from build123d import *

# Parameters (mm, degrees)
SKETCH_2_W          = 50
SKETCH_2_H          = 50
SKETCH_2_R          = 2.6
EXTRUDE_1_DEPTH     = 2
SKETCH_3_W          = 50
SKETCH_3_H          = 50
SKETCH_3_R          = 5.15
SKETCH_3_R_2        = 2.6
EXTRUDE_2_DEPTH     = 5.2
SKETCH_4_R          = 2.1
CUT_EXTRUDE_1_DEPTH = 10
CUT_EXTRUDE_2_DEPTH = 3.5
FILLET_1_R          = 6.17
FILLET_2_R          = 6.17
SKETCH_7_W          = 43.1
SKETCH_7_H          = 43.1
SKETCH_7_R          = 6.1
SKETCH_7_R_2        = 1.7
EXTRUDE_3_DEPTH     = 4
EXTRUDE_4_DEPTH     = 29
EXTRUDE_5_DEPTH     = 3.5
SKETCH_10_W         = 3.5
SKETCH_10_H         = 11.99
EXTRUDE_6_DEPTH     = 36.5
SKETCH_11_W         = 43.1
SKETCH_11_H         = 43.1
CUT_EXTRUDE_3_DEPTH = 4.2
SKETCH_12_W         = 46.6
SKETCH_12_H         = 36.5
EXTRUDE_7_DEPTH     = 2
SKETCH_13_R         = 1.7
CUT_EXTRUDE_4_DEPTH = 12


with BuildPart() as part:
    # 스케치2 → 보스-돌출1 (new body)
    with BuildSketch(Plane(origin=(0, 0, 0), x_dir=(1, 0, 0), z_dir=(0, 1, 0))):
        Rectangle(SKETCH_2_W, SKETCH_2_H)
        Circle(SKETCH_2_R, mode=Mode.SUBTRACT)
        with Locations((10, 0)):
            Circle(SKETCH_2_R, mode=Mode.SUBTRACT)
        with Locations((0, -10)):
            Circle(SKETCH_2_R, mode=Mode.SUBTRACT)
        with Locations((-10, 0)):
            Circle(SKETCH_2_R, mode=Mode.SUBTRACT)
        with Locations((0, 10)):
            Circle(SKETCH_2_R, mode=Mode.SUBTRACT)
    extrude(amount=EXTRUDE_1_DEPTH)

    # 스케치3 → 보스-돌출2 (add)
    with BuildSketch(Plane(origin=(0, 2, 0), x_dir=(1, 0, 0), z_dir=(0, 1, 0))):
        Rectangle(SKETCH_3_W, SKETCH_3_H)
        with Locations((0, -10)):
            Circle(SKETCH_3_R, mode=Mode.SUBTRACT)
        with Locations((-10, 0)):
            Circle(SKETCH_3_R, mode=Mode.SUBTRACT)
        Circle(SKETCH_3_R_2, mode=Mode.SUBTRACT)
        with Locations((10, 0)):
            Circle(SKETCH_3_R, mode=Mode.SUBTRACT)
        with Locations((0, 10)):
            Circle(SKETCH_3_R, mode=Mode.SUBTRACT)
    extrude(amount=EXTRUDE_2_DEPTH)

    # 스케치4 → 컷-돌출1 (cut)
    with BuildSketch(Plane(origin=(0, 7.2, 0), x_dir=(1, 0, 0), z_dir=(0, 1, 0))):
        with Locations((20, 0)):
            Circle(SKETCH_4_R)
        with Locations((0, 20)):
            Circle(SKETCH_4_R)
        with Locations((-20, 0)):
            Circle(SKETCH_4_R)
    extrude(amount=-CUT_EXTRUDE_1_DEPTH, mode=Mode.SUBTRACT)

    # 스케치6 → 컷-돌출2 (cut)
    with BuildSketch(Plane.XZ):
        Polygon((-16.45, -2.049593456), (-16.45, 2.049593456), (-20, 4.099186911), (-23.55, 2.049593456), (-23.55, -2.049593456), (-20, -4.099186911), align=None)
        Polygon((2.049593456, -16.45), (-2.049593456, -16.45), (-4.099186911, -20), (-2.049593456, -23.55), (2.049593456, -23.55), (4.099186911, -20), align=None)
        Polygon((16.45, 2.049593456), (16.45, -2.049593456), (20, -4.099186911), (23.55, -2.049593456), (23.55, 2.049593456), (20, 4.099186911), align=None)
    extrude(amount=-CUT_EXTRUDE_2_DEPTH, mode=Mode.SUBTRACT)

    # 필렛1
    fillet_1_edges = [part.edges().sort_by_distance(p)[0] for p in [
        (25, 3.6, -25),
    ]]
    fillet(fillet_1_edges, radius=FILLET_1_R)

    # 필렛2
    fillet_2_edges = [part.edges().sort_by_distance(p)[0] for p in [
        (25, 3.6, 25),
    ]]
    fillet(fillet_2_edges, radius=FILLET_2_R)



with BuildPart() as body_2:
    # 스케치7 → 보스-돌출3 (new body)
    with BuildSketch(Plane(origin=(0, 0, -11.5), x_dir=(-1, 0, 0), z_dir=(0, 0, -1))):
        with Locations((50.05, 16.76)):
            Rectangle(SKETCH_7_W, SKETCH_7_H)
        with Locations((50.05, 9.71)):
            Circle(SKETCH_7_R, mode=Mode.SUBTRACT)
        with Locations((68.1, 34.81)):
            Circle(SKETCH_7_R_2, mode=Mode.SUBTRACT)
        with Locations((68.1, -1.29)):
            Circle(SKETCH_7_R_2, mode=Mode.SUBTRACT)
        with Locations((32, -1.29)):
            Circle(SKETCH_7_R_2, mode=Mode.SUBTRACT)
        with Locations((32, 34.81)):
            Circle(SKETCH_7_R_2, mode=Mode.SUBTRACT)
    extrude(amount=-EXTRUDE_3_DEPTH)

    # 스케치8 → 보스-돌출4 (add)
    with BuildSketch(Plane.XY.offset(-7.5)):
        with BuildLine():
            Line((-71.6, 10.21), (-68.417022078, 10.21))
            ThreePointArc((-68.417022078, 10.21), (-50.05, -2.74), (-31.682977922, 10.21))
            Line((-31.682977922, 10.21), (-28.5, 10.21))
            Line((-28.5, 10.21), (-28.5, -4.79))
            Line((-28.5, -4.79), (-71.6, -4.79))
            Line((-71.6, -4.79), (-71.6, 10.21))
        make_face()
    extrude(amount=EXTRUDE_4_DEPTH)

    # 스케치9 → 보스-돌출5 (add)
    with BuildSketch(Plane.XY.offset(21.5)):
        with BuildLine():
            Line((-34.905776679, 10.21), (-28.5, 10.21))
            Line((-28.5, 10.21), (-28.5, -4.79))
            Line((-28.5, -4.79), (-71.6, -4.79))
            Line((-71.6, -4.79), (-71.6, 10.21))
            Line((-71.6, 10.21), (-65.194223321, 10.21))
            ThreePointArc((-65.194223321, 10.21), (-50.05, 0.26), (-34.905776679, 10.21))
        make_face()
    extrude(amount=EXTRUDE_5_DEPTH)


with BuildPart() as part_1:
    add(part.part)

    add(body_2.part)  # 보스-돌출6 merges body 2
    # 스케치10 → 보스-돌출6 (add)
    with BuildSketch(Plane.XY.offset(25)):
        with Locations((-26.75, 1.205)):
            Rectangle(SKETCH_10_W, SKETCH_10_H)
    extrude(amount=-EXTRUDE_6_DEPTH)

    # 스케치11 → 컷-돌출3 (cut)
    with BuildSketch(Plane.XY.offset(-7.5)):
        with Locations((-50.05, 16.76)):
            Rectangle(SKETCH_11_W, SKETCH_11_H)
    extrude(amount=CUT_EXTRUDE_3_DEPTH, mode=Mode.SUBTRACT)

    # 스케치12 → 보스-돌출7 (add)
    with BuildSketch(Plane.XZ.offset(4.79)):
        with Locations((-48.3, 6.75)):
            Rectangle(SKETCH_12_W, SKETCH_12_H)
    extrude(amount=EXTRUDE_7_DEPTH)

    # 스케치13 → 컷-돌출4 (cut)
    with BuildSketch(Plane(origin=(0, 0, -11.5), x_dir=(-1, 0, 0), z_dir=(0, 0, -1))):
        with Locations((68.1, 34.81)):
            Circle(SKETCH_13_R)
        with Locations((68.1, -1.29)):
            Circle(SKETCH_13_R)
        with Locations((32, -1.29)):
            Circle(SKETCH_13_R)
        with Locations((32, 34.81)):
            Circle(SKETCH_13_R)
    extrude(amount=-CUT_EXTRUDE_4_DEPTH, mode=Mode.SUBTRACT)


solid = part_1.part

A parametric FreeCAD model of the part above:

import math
import FreeCAD as App
import Part
import Sketcher
Q = App.Units.Quantity


def edges_at(feature, points):
    """Names of the edges that pass closest to the given points."""
    edges = feature.Shape.Edges
    near = lambda p: min(range(len(edges)), key=lambda i: edges[i].distToShape(Part.Vertex(*p))[0])
    return sorted({f"Edge{near(p) + 1}" for p in points})

doc = App.newDocument("Part")
params = doc.addObject("Spreadsheet::Sheet", "Params")
for row, (alias, value) in enumerate([
    ("sketch1_diameter", "5.2 mm"),
    ("sketch1_width", "50 mm"),
    ("pad1_length", "2 mm"),
    ("sketch2_diameter", "10.3 mm"),
    ("sketch2_diameter2", "5.2 mm"),
    ("sketch2_width", "50 mm"),
    ("pad2_length", "5.2 mm"),
    ("sketch3_diameter", "4.2 mm"),
    ("pocket1_length", "10 mm"),
    ("pocket2_length", "3.5 mm"),
    ("fillet_radius", "6.17 mm"),
    ("fillet2_radius", "6.17 mm"),
    ("sketch5_diameter", "3.4 mm"),
    ("sketch5_diameter2", "12.2 mm"),
    ("sketch5_width", "43.1 mm"),
    ("pad3_length", "4 mm"),
    ("sketch6_radius", "19.5 mm"),
    ("sketch6_height", "15 mm"),
    ("sketch6_width", "43.1 mm"),
    ("pad4_length", "29 mm"),
    ("sketch7_radius", "16.5 mm"),
    ("sketch7_height", "15 mm"),
    ("sketch7_width", "43.1 mm"),
    ("pad5_length", "3.5 mm"),
    ("sketch8_width", "3.5 mm"),
    ("sketch8_height", "11.99 mm"),
    ("pad6_length", "36.5 mm"),
    ("sketch9_width", "43.1 mm"),
    ("pocket3_length", "4.2 mm"),
    ("sketch10_width", "46.6 mm"),
    ("sketch10_height", "36.5 mm"),
    ("pad7_length", "2 mm"),
    ("sketch11_diameter", "3.4 mm"),
    ("pocket4_length", "12 mm"),
], start=1):
    params.set(f"A{row}", alias)
    params.set(f"B{row}", "=" + value)
    params.setAlias(f"B{row}", alias)

body = doc.addObject("PartDesign::Body", "Body")

# Sketch on XZ plane
sketch1 = body.newObject("Sketcher::SketchObject", "Sketch")
sketch1.AttachmentSupport = (doc.getObject("XZ_Plane"), [""])
sketch1.MapMode = "FlatFace"
sketch1.addGeometry([
    Part.LineSegment(App.Vector(-25, -25, 0), App.Vector(-25, 25, 0)),  # 0
    Part.LineSegment(App.Vector(-25, 25, 0), App.Vector(25, 25, 0)),  # 1
    Part.LineSegment(App.Vector(25, 25, 0), App.Vector(25, -25, 0)),  # 2
    Part.LineSegment(App.Vector(25, -25, 0), App.Vector(-25, -25, 0)),  # 3
    Part.Circle(App.Vector(0, 10, 0), App.Vector(0, 0, 1), 2.6),  # 4
    Part.Circle(App.Vector(-10, 0, 0), App.Vector(0, 0, 1), 2.6),  # 5
    Part.Circle(App.Vector(0, 0, 0), App.Vector(0, 0, 1), 2.6),  # 6
    Part.Circle(App.Vector(10, 0, 0), App.Vector(0, 0, 1), 2.6),  # 7
    Part.Circle(App.Vector(0, -10, 0), App.Vector(0, 0, 1), 2.6),  # 8
], False)
sketch1.addConstraint([
    Sketcher.Constraint("Coincident", 0, 2, 1, 1),
    Sketcher.Constraint("Coincident", 1, 2, 2, 1),
    Sketcher.Constraint("Coincident", 2, 2, 3, 1),
    Sketcher.Constraint("Coincident", 3, 2, 0, 1),
    Sketcher.Constraint("Vertical", 0),
    Sketcher.Constraint("Horizontal", 1),
    Sketcher.Constraint("Vertical", 2),
    Sketcher.Constraint("Horizontal", 3),
    Sketcher.Constraint("Coincident", 6, 3, -1, 1),
    Sketcher.Constraint("Equal", 4, 5),
    Sketcher.Constraint("Equal", 5, 6),
    Sketcher.Constraint("Equal", 6, 7),
    Sketcher.Constraint("Equal", 7, 8),
    Sketcher.Constraint("Symmetric", 5, 3, 7, 3, -1, 1),
    Sketcher.Constraint("Symmetric", 4, 3, 8, 3, -1, 1),
    Sketcher.Constraint("Symmetric", 0, 2, 2, 2, -1, 1),
    Sketcher.Constraint("PointOnObject", 4, 3, -2),
    Sketcher.Constraint("PointOnObject", 5, 3, -1),
    Sketcher.Constraint("Equal", 3, 0),
    Sketcher.Constraint("Diameter", 4, Q("5.2 mm")),
    Sketcher.Constraint("DistanceX", 1, 1, 1, 2, Q("50 mm")),
    Sketcher.Constraint("DistanceY", -1, 1, 4, 3, Q("10 mm")),
    Sketcher.Constraint("DistanceX", 5, 3, -1, 1, Q("10 mm")),
])
sketch1.setExpression("Constraints[19]", "Params.sketch1_diameter")
sketch1.setExpression("Constraints[20]", "Params.sketch1_width")
pad1 = body.newObject("PartDesign::Pad", "Pad")
pad1.Profile = sketch1
pad1.setExpression("Length", "Params.pad1_length")
pad1.Reversed = True

# Sketch on XZ plane
sketch2 = body.newObject("Sketcher::SketchObject", "Sketch001")
sketch2.AttachmentSupport = (doc.getObject("XZ_Plane"), [""])
sketch2.MapMode = "FlatFace"
sketch2.AttachmentOffset = App.Placement(App.Vector(0, 0, -2), App.Rotation())
sketch2.addGeometry([
    Part.LineSegment(App.Vector(-25, -25, 0), App.Vector(-25, 25, 0)),  # 0
    Part.LineSegment(App.Vector(-25, 25, 0), App.Vector(25, 25, 0)),  # 1
    Part.LineSegment(App.Vector(25, 25, 0), App.Vector(25, -25, 0)),  # 2
    Part.LineSegment(App.Vector(25, -25, 0), App.Vector(-25, -25, 0)),  # 3
    Part.Circle(App.Vector(0, 10, 0), App.Vector(0, 0, 1), 5.2),  # 4
    Part.Circle(App.Vector(-10, 0, 0), App.Vector(0, 0, 1), 5.2),  # 5
    Part.Circle(App.Vector(0, 0, 0), App.Vector(0, 0, 1), 2.6),  # 6
    Part.Circle(App.Vector(10, 0, 0), App.Vector(0, 0, 1), 5.2),  # 7
    Part.Circle(App.Vector(0, -10, 0), App.Vector(0, 0, 1), 5.2),  # 8
], False)
sketch2.addConstraint([
    Sketcher.Constraint("Coincident", 0, 2, 1, 1),
    Sketcher.Constraint("Coincident", 1, 2, 2, 1),
    Sketcher.Constraint("Coincident", 2, 2, 3, 1),
    Sketcher.Constraint("Coincident", 3, 2, 0, 1),
    Sketcher.Constraint("Vertical", 0),
    Sketcher.Constraint("Horizontal", 1),
    Sketcher.Constraint("Vertical", 2),
    Sketcher.Constraint("Horizontal", 3),
    Sketcher.Constraint("Coincident", 6, 3, -1, 1),
    Sketcher.Constraint("Equal", 4, 5),
    Sketcher.Constraint("Equal", 5, 7),
    Sketcher.Constraint("Equal", 7, 8),
    Sketcher.Constraint("Symmetric", 5, 3, 7, 3, -1, 1),
    Sketcher.Constraint("Symmetric", 4, 3, 8, 3, -1, 1),
    Sketcher.Constraint("Symmetric", 0, 2, 2, 2, -1, 1),
    Sketcher.Constraint("PointOnObject", 4, 3, -2),
    Sketcher.Constraint("PointOnObject", 5, 3, -1),
    Sketcher.Constraint("Equal", 3, 0),
    Sketcher.Constraint("Diameter", 4, Q("10.3 mm")),
    Sketcher.Constraint("Diameter", 6, Q("5.2 mm")),
    Sketcher.Constraint("DistanceX", 1, 1, 1, 2, Q("50 mm")),
    Sketcher.Constraint("DistanceY", -1, 1, 4, 3, Q("10 mm")),
    Sketcher.Constraint("DistanceX", 5, 3, -1, 1, Q("10 mm")),
])
sketch2.setExpression("Constraints[18]", "Params.sketch2_diameter")
sketch2.setExpression("Constraints[19]", "Params.sketch2_diameter2")
sketch2.setExpression("Constraints[20]", "Params.sketch2_width")
pad2 = body.newObject("PartDesign::Pad", "Pad001")
pad2.Profile = sketch2
pad2.setExpression("Length", "Params.pad2_length")
pad2.Reversed = True

# Sketch on XZ plane
sketch3 = body.newObject("Sketcher::SketchObject", "Sketch002")
sketch3.AttachmentSupport = (doc.getObject("XZ_Plane"), [""])
sketch3.MapMode = "FlatFace"
sketch3.AttachmentOffset = App.Placement(App.Vector(0, 0, -7.2), App.Rotation())
sketch3.addGeometry([
    Part.Circle(App.Vector(20, 0, 0), App.Vector(0, 0, 1), 2.1),
    Part.Circle(App.Vector(0, -20, 0), App.Vector(0, 0, 1), 2.1),
    Part.Circle(App.Vector(-20, 0, 0), App.Vector(0, 0, 1), 2.1),
], False)
sketch3.addConstraint([
    Sketcher.Constraint("Equal", 0, 1),
    Sketcher.Constraint("Equal", 1, 2),
    Sketcher.Constraint("Symmetric", 0, 3, 2, 3, -1, 1),
    Sketcher.Constraint("PointOnObject", 0, 3, -1),
    Sketcher.Constraint("PointOnObject", 1, 3, -2),
    Sketcher.Constraint("Diameter", 0, Q("4.2 mm")),
    Sketcher.Constraint("DistanceX", -1, 1, 0, 3, Q("20 mm")),
    Sketcher.Constraint("DistanceY", 1, 3, -1, 1, Q("20 mm")),
])
sketch3.setExpression("Constraints[5]", "Params.sketch3_diameter")
pocket1 = body.newObject("PartDesign::Pocket", "Pocket")
pocket1.Profile = sketch3
pocket1.setExpression("Length", "Params.pocket1_length")
pocket1.Reversed = True

# Sketch on XZ plane
sketch4 = body.newObject("Sketcher::SketchObject", "Sketch003")
sketch4.AttachmentSupport = (doc.getObject("XZ_Plane"), [""])
sketch4.MapMode = "FlatFace"
sketch4.addGeometry([
    Part.LineSegment(App.Vector(-16.4, -2, 0), App.Vector(-16.4, 2, 0)),  # 0
    Part.LineSegment(App.Vector(-16.4, 2, 0), App.Vector(-20, 4.1, 0)),  # 1
    Part.LineSegment(App.Vector(-20, 4.1, 0), App.Vector(-23.6, 2, 0)),  # 2
    Part.LineSegment(App.Vector(-23.6, 2, 0), App.Vector(-23.6, -2, 0)),  # 3
    Part.LineSegment(App.Vector(-23.6, -2, 0), App.Vector(-20, -4.1, 0)),  # 4
    Part.LineSegment(App.Vector(-20, -4.1, 0), App.Vector(-16.4, -2, 0)),  # 5
    Part.LineSegment(App.Vector(2, -16.4, 0), App.Vector(-2, -16.4, 0)),  # 6
    Part.LineSegment(App.Vector(-2, -16.4, 0), App.Vector(-4.1, -20, 0)),  # 7
    Part.LineSegment(App.Vector(-4.1, -20, 0), App.Vector(-2, -23.6, 0)),  # 8
    Part.LineSegment(App.Vector(-2, -23.6, 0), App.Vector(2, -23.6, 0)),  # 9
    Part.LineSegment(App.Vector(2, -23.6, 0), App.Vector(4.1, -20, 0)),  # 10
    Part.LineSegment(App.Vector(4.1, -20, 0), App.Vector(2, -16.4, 0)),  # 11
    Part.LineSegment(App.Vector(16.4, 2, 0), App.Vector(16.4, -2, 0)),  # 12
    Part.LineSegment(App.Vector(16.4, -2, 0), App.Vector(20, -4.1, 0)),  # 13
    Part.LineSegment(App.Vector(20, -4.1, 0), App.Vector(23.6, -2, 0)),  # 14
    Part.LineSegment(App.Vector(23.6, -2, 0), App.Vector(23.6, 2, 0)),  # 15
    Part.LineSegment(App.Vector(23.6, 2, 0), App.Vector(20, 4.1, 0)),  # 16
    Part.LineSegment(App.Vector(20, 4.1, 0), App.Vector(16.4, 2, 0)),  # 17
], False)
sketch4.addConstraint([
    Sketcher.Constraint("Coincident", 0, 2, 1, 1),
    Sketcher.Constraint("Coincident", 1, 2, 2, 1),
    Sketcher.Constraint("Coincident", 2, 2, 3, 1),
    Sketcher.Constraint("Coincident", 3, 2, 4, 1),
    Sketcher.Constraint("Coincident", 4, 2, 5, 1),
    Sketcher.Constraint("Coincident", 5, 2, 0, 1),
    Sketcher.Constraint("Coincident", 6, 2, 7, 1),
    Sketcher.Constraint("Coincident", 7, 2, 8, 1),
    Sketcher.Constraint("Coincident", 8, 2, 9, 1),
    Sketcher.Constraint("Coincident", 9, 2, 10, 1),
    Sketcher.Constraint("Coincident", 10, 2, 11, 1),
    Sketcher.Constraint("Coincident", 11, 2, 6, 1),
    Sketcher.Constraint("Coincident", 12, 2, 13, 1),
    Sketcher.Constraint("Coincident", 13, 2, 14, 1),
    Sketcher.Constraint("Coincident", 14, 2, 15, 1),
    Sketcher.Constraint("Coincident", 15, 2, 16, 1),
    Sketcher.Constraint("Coincident", 16, 2, 17, 1),
    Sketcher.Constraint("Coincident", 17, 2, 12, 1),
    Sketcher.Constraint("Vertical", 0),
    Sketcher.Constraint("Vertical", 3),
    Sketcher.Constraint("Horizontal", 6),
    Sketcher.Constraint("Horizontal", 9),
    Sketcher.Constraint("Vertical", 12),
    Sketcher.Constraint("Vertical", 15),
    Sketcher.Constraint("Symmetric", 0, 2, 12, 2, -1, 1),
    Sketcher.Constraint("Symmetric", 1, 2, 13, 2, -1, 1),
    Sketcher.Constraint("Symmetric", 2, 2, 14, 2, -1, 1),
    Sketcher.Constraint("Symmetric", 4, 2, 16, 2, -1, 1),
    Sketcher.Constraint("Symmetric", 7, 2, 10, 2, -2),
    Sketcher.Constraint("Symmetric", 4, 2, 13, 2, -2),
    Sketcher.Constraint("Parallel", 1, 4),
    Sketcher.Constraint("Parallel", 2, 5),
    Sketcher.Constraint("Perpendicular", 4, 7),
    Sketcher.Constraint("Perpendicular", 5, 8),
    Sketcher.Constraint("Parallel", 7, 10),
    Sketcher.Constraint("Parallel", 8, 11),
    Sketcher.Constraint("Parallel", 13, 16),
    Sketcher.Constraint("Parallel", 14, 17),
    Sketcher.Constraint("Horizontal", 0, 2, 2, 2),
    Sketcher.Constraint("Horizontal", 3, 2, 5, 2),
    Sketcher.Constraint("Vertical", 6, 2, 8, 2),
    Sketcher.Constraint("Equal", 9, 0),
    Sketcher.Constraint("Equal", 5, 7),
    Sketcher.Constraint("Angle", 1, Q("150 deg")),
    Sketcher.Constraint("DistanceX", 1, 2, -1, 1, Q("20 mm")),
    Sketcher.Constraint("DistanceY", 7, 2, -1, 1, Q("20 mm")),
    Sketcher.Constraint("DistanceX", 2, 2, 0, 2, Q("7.1 mm")),
    Sketcher.Constraint("DistanceX", 6, 2, 6, 1, Q("4.099187 mm")),
])
pocket2 = body.newObject("PartDesign::Pocket", "Pocket001")
pocket2.Profile = sketch4
pocket2.setExpression("Length", "Params.pocket2_length")
doc.recompute()

fillet = body.newObject("PartDesign::Fillet", "Fillet")
fillet.Base = (pocket2, edges_at(pocket2, [(25, 3.6, -25)]))
fillet.setExpression("Radius", "Params.fillet_radius")
doc.recompute()

fillet2 = body.newObject("PartDesign::Fillet", "Fillet001")
fillet2.Base = (fillet, edges_at(fillet, [(25, 3.6, 25)]))
fillet2.setExpression("Radius", "Params.fillet2_radius")
body2 = doc.addObject("PartDesign::Body", "Body001")

# Sketch on XY plane
sketch5 = body2.newObject("Sketcher::SketchObject", "Sketch004")
sketch5.AttachmentSupport = (doc.getObject("XY_Plane001"), [""])
sketch5.MapMode = "FlatFace"
sketch5.AttachmentOffset = App.Placement(App.Vector(0, 0, -11.5), App.Rotation())
sketch5.addGeometry([
    Part.LineSegment(App.Vector(-28.5, 38.3, 0), App.Vector(-28.5, -4.8, 0)),  # 0
    Part.LineSegment(App.Vector(-28.5, -4.8, 0), App.Vector(-71.6, -4.8, 0)),  # 1
    Part.LineSegment(App.Vector(-71.6, -4.8, 0), App.Vector(-71.6, 38.3, 0)),  # 2
    Part.LineSegment(App.Vector(-71.6, 38.3, 0), App.Vector(-28.5, 38.3, 0)),  # 3
    Part.Circle(App.Vector(-32, -1.3, 0), App.Vector(0, 0, 1), 1.7),  # 4
    Part.Circle(App.Vector(-50, 9.7, 0), App.Vector(0, 0, 1), 6.1),  # 5
    Part.Circle(App.Vector(-68.1, -1.3, 0), App.Vector(0, 0, 1), 1.7),  # 6
    Part.Circle(App.Vector(-32, 34.8, 0), App.Vector(0, 0, 1), 1.7),  # 7
    Part.Circle(App.Vector(-68.1, 34.8, 0), App.Vector(0, 0, 1), 1.7),  # 8
], False)
sketch5.addConstraint([
    Sketcher.Constraint("Coincident", 0, 2, 1, 1),
    Sketcher.Constraint("Coincident", 1, 2, 2, 1),
    Sketcher.Constraint("Coincident", 2, 2, 3, 1),
    Sketcher.Constraint("Coincident", 3, 2, 0, 1),
    Sketcher.Constraint("Vertical", 0),
    Sketcher.Constraint("Horizontal", 1),
    Sketcher.Constraint("Vertical", 2),
    Sketcher.Constraint("Horizontal", 3),
    Sketcher.Constraint("Equal", 4, 6),
    Sketcher.Constraint("Equal", 6, 7),
    Sketcher.Constraint("Equal", 7, 8),
    Sketcher.Constraint("Horizontal", 4, 3, 6, 3),
    Sketcher.Constraint("Horizontal", 7, 3, 8, 3),
    Sketcher.Constraint("Vertical", 4, 3, 7, 3),
    Sketcher.Constraint("Vertical", 6, 3, 8, 3),
    Sketcher.Constraint("Equal", 3, 0),
    Sketcher.Constraint("Diameter", 4, Q("3.4 mm")),
    Sketcher.Constraint("Diameter", 5, Q("12.2 mm")),
    Sketcher.Constraint("DistanceX", 1, 2, 1, 1, Q("43.1 mm")),
    Sketcher.Constraint("DistanceX", 4, 3, -1, 1, Q("32 mm")),
    Sketcher.Constraint("DistanceY", 4, 3, 5, 3, Q("11 mm")),
    Sketcher.Constraint("DistanceX", 6, 3, -1, 1, Q("68.1 mm")),
    Sketcher.Constraint("DistanceX", 0, 2, -1, 1, Q("28.5 mm")),
    Sketcher.Constraint("DistanceY", 5, 3, 7, 3, Q("25.1 mm")),
    Sketcher.Constraint("DistanceY", 0, 2, 4, 3, Q("3.5 mm")),
    Sketcher.Constraint("DistanceY", 4, 3, -1, 1, Q("1.29 mm")),
    Sketcher.Constraint("DistanceX", 5, 3, -1, 1, Q("50.05 mm")),
])
sketch5.setExpression("Constraints[16]", "Params.sketch5_diameter")
sketch5.setExpression("Constraints[17]", "Params.sketch5_diameter2")
sketch5.setExpression("Constraints[18]", "Params.sketch5_width")
pad3 = body2.newObject("PartDesign::Pad", "Pad002")
pad3.Profile = sketch5
pad3.setExpression("Length", "Params.pad3_length")

# Sketch on XY plane
sketch6 = body2.newObject("Sketcher::SketchObject", "Sketch005")
sketch6.AttachmentSupport = (doc.getObject("XY_Plane001"), [""])
sketch6.MapMode = "FlatFace"
sketch6.AttachmentOffset = App.Placement(App.Vector(0, 0, -7.5), App.Rotation())
sketch6.addGeometry([
    Part.LineSegment(App.Vector(-68.4, 10.2, 0), App.Vector(-71.6, 10.2, 0)),  # 0
    Part.LineSegment(App.Vector(-71.6, 10.2, 0), App.Vector(-71.6, -4.8, 0)),  # 1
    Part.LineSegment(App.Vector(-71.6, -4.8, 0), App.Vector(-28.5, -4.8, 0)),  # 2
    Part.LineSegment(App.Vector(-28.5, -4.8, 0), App.Vector(-28.5, 10.2, 0)),  # 3
    Part.LineSegment(App.Vector(-28.5, 10.2, 0), App.Vector(-31.7, 10.2, 0)),  # 4
    Part.ArcOfCircle(Part.Circle(App.Vector(-50, 16.8, 0), App.Vector(0, 0, 1), 19.5), math.radians(-160), math.radians(-20)),  # 5
], False)
sketch6.addConstraint([
    Sketcher.Constraint("Coincident", 0, 2, 1, 1),
    Sketcher.Constraint("Coincident", 1, 2, 2, 1),
    Sketcher.Constraint("Coincident", 2, 2, 3, 1),
    Sketcher.Constraint("Coincident", 3, 2, 4, 1),
    Sketcher.Constraint("Coincident", 4, 2, 5, 2),
    Sketcher.Constraint("Coincident", 5, 1, 0, 1),
    Sketcher.Constraint("Horizontal", 0),
    Sketcher.Constraint("Vertical", 1),
    Sketcher.Constraint("Horizontal", 2),
    Sketcher.Constraint("Vertical", 3),
    Sketcher.Constraint("Horizontal", 4),
    Sketcher.Constraint("Horizontal", 0, 2, 3, 2),
    Sketcher.Constraint("Equal", 0, 4),
    Sketcher.Constraint("Radius", 5, Q("19.5 mm")),
    Sketcher.Constraint("DistanceY", 1, 2, 1, 1, Q("15 mm")),
    Sketcher.Constraint("DistanceX", 2, 1, 2, 2, Q("43.1 mm")),
    Sketcher.Constraint("DistanceX", 0, 2, -1, 1, Q("71.6 mm")),
    Sketcher.Constraint("DistanceY", -1, 1, 5, 3, Q("16.76 mm")),
    Sketcher.Constraint("DistanceY", -1, 1, 0, 2, Q("10.21 mm")),
])
sketch6.setExpression("Constraints[13]", "Params.sketch6_radius")
sketch6.setExpression("Constraints[14]", "Params.sketch6_height")
sketch6.setExpression("Constraints[15]", "Params.sketch6_width")
pad4 = body2.newObject("PartDesign::Pad", "Pad003")
pad4.Profile = sketch6
pad4.setExpression("Length", "Params.pad4_length")

# Sketch on XY plane
sketch7 = body2.newObject("Sketcher::SketchObject", "Sketch006")
sketch7.AttachmentSupport = (doc.getObject("XY_Plane001"), [""])
sketch7.MapMode = "FlatFace"
sketch7.AttachmentOffset = App.Placement(App.Vector(0, 0, 21.5), App.Rotation())
sketch7.addGeometry([
    Part.LineSegment(App.Vector(-28, 10, 0), App.Vector(-35, 10, 0)),  # 0
    Part.ArcOfCircle(Part.Circle(App.Vector(-50, 17, 0), App.Vector(0, 0, 1), 16), math.radians(-157), math.radians(-23)),  # 1
    Part.LineSegment(App.Vector(-65, 10, 0), App.Vector(-72, 10, 0)),  # 2
    Part.LineSegment(App.Vector(-72, 10, 0), App.Vector(-72, -5, 0)),  # 3
    Part.LineSegment(App.Vector(-72, -5, 0), App.Vector(-28, -5, 0)),  # 4
    Part.LineSegment(App.Vector(-28, -5, 0), App.Vector(-28, 10, 0)),  # 5
], False)
sketch7.addConstraint([
    Sketcher.Constraint("Coincident", 0, 2, 1, 2),
    Sketcher.Constraint("Coincident", 1, 1, 2, 1),
    Sketcher.Constraint("Coincident", 2, 2, 3, 1),
    Sketcher.Constraint("Coincident", 3, 2, 4, 1),
    Sketcher.Constraint("Coincident", 4, 2, 5, 1),
    Sketcher.Constraint("Coincident", 5, 2, 0, 1),
    Sketcher.Constraint("Horizontal", 0),
    Sketcher.Constraint("Horizontal", 2),
    Sketcher.Constraint("Vertical", 3),
    Sketcher.Constraint("Horizontal", 4),
    Sketcher.Constraint("Vertical", 5),
    Sketcher.Constraint("Horizontal", 0, 2, 1, 1),
    Sketcher.Constraint("Equal", 0, 2),
    Sketcher.Constraint("Radius", 1, Q("16.5 mm")),
    Sketcher.Constraint("DistanceY", 3, 2, 3, 1, Q("15 mm")),
    Sketcher.Constraint("DistanceX", 4, 1, 4, 2, Q("43.1 mm")),
    Sketcher.Constraint("DistanceX", 2, 2, -1, 1, Q("71.6 mm")),
    Sketcher.Constraint("DistanceY", -1, 1, 1, 3, Q("16.76 mm")),
    Sketcher.Constraint("DistanceY", -1, 1, 0, 2, Q("10.21 mm")),
])
sketch7.setExpression("Constraints[13]", "Params.sketch7_radius")
sketch7.setExpression("Constraints[14]", "Params.sketch7_height")
sketch7.setExpression("Constraints[15]", "Params.sketch7_width")
pad5 = body2.newObject("PartDesign::Pad", "Pad004")
pad5.Profile = sketch7
pad5.setExpression("Length", "Params.pad5_length")
body.AllowCompound = True
doc.recompute()

boolean = body.newObject("PartDesign::Boolean", "Boolean")
boolean.Type = "Fuse"
boolean.addObjects([body2])

# Sketch on XY plane
sketch8 = body.newObject("Sketcher::SketchObject", "Sketch007")
sketch8.AttachmentSupport = (doc.getObject("XY_Plane"), [""])
sketch8.MapMode = "FlatFace"
sketch8.AttachmentOffset = App.Placement(App.Vector(0, 0, 25), App.Rotation())
sketch8.addGeometry([
    Part.LineSegment(App.Vector(-28.5, 7.2, 0), App.Vector(-28.5, -4.8, 0)),
    Part.LineSegment(App.Vector(-28.5, -4.8, 0), App.Vector(-25, -4.8, 0)),
    Part.LineSegment(App.Vector(-25, -4.8, 0), App.Vector(-25, 7.2, 0)),
    Part.LineSegment(App.Vector(-25, 7.2, 0), App.Vector(-28.5, 7.2, 0)),
], False)
sketch8.addConstraint([
    Sketcher.Constraint("Coincident", 0, 2, 1, 1),
    Sketcher.Constraint("Coincident", 1, 2, 2, 1),
    Sketcher.Constraint("Coincident", 2, 2, 3, 1),
    Sketcher.Constraint("Coincident", 3, 2, 0, 1),
    Sketcher.Constraint("Vertical", 0),
    Sketcher.Constraint("Horizontal", 1),
    Sketcher.Constraint("Vertical", 2),
    Sketcher.Constraint("Horizontal", 3),
    Sketcher.Constraint("DistanceX", 1, 1, 1, 2, Q("3.5 mm")),
    Sketcher.Constraint("DistanceX", 1, 2, -1, 1, Q("25 mm")),
    Sketcher.Constraint("DistanceY", 0, 2, 0, 1, Q("11.99 mm")),
    Sketcher.Constraint("DistanceY", -1, 1, 2, 2, Q("7.2 mm")),
])
sketch8.setExpression("Constraints[8]", "Params.sketch8_width")
sketch8.setExpression("Constraints[10]", "Params.sketch8_height")
pad6 = body.newObject("PartDesign::Pad", "Pad005")
pad6.Profile = sketch8
pad6.setExpression("Length", "Params.pad6_length")
pad6.Reversed = True

# Sketch on XY plane
sketch9 = body.newObject("Sketcher::SketchObject", "Sketch008")
sketch9.AttachmentSupport = (doc.getObject("XY_Plane"), [""])
sketch9.MapMode = "FlatFace"
sketch9.AttachmentOffset = App.Placement(App.Vector(0, 0, -7.5), App.Rotation())
sketch9.addGeometry([
    Part.LineSegment(App.Vector(-72, 38, 0), App.Vector(-72, -5, 0)),
    Part.LineSegment(App.Vector(-72, -5, 0), App.Vector(-28, -5, 0)),
    Part.LineSegment(App.Vector(-28, -5, 0), App.Vector(-28, 38, 0)),
    Part.LineSegment(App.Vector(-28, 38, 0), App.Vector(-72, 38, 0)),
], False)
sketch9.addConstraint([
    Sketcher.Constraint("Coincident", 0, 2, 1, 1),
    Sketcher.Constraint("Coincident", 1, 2, 2, 1),
    Sketcher.Constraint("Coincident", 2, 2, 3, 1),
    Sketcher.Constraint("Coincident", 3, 2, 0, 1),
    Sketcher.Constraint("Vertical", 0),
    Sketcher.Constraint("Horizontal", 1),
    Sketcher.Constraint("Vertical", 2),
    Sketcher.Constraint("Horizontal", 3),
    Sketcher.Constraint("Equal", 3, 0),
    Sketcher.Constraint("DistanceX", 1, 1, 1, 2, Q("43.1 mm")),
    Sketcher.Constraint("DistanceX", 0, 2, -1, 1, Q("71.6 mm")),
    Sketcher.Constraint("DistanceY", 0, 2, -1, 1, Q("4.79 mm")),
])
sketch9.setExpression("Constraints[9]", "Params.sketch9_width")
pocket3 = body.newObject("PartDesign::Pocket", "Pocket002")
pocket3.Profile = sketch9
pocket3.setExpression("Length", "Params.pocket3_length")
pocket3.Reversed = True

# Sketch on XZ plane
sketch10 = body.newObject("Sketcher::SketchObject", "Sketch009")
sketch10.AttachmentSupport = (doc.getObject("XZ_Plane"), [""])
sketch10.MapMode = "FlatFace"
sketch10.AttachmentOffset = App.Placement(App.Vector(0, 0, 4.79), App.Rotation())
sketch10.addGeometry([
    Part.LineSegment(App.Vector(-72, 25, 0), App.Vector(-72, -12, 0)),
    Part.LineSegment(App.Vector(-72, -12, 0), App.Vector(-25, -12, 0)),
    Part.LineSegment(App.Vector(-25, -12, 0), App.Vector(-25, 25, 0)),
    Part.LineSegment(App.Vector(-25, 25, 0), App.Vector(-72, 25, 0)),
], False)
sketch10.addConstraint([
    Sketcher.Constraint("Coincident", 0, 2, 1, 1),
    Sketcher.Constraint("Coincident", 1, 2, 2, 1),
    Sketcher.Constraint("Coincident", 2, 2, 3, 1),
    Sketcher.Constraint("Coincident", 3, 2, 0, 1),
    Sketcher.Constraint("Vertical", 0),
    Sketcher.Constraint("Horizontal", 1),
    Sketcher.Constraint("Vertical", 2),
    Sketcher.Constraint("Horizontal", 3),
    Sketcher.Constraint("DistanceX", 1, 1, 1, 2, Q("46.6 mm")),
    Sketcher.Constraint("DistanceY", 0, 2, 0, 1, Q("36.5 mm")),
    Sketcher.Constraint("DistanceX", 1, 2, -1, 1, Q("25 mm")),
    Sketcher.Constraint("DistanceY", -1, 1, 2, 2, Q("25 mm")),
])
sketch10.setExpression("Constraints[8]", "Params.sketch10_width")
sketch10.setExpression("Constraints[9]", "Params.sketch10_height")
pad7 = body.newObject("PartDesign::Pad", "Pad006")
pad7.Profile = sketch10
pad7.setExpression("Length", "Params.pad7_length")

# Sketch on XY plane
sketch11 = body.newObject("Sketcher::SketchObject", "Sketch010")
sketch11.AttachmentSupport = (doc.getObject("XY_Plane"), [""])
sketch11.MapMode = "FlatFace"
sketch11.AttachmentOffset = App.Placement(App.Vector(0, 0, -11.5), App.Rotation())
sketch11.addGeometry([
    Part.Circle(App.Vector(-68.1, 34.8, 0), App.Vector(0, 0, 1), 1.7),
    Part.Circle(App.Vector(-68.1, -1.3, 0), App.Vector(0, 0, 1), 1.7),
    Part.Circle(App.Vector(-32, -1.3, 0), App.Vector(0, 0, 1), 1.7),
    Part.Circle(App.Vector(-32, 34.8, 0), App.Vector(0, 0, 1), 1.7),
], False)
sketch11.addConstraint([
    Sketcher.Constraint("Equal", 0, 1),
    Sketcher.Constraint("Equal", 1, 2),
    Sketcher.Constraint("Equal", 2, 3),
    Sketcher.Constraint("Horizontal", 1, 3, 2, 3),
    Sketcher.Constraint("Horizontal", 0, 3, 3, 3),
    Sketcher.Constraint("Vertical", 0, 3, 1, 3),
    Sketcher.Constraint("Vertical", 2, 3, 3, 3),
    Sketcher.Constraint("Diameter", 0, Q("3.4 mm")),
    Sketcher.Constraint("DistanceX", 2, 3, -1, 1, Q("32 mm")),
    Sketcher.Constraint("DistanceX", 0, 3, -1, 1, Q("68.1 mm")),
    Sketcher.Constraint("DistanceY", 1, 3, 0, 3, Q("36.1 mm")),
    Sketcher.Constraint("DistanceY", -1, 1, 0, 3, Q("34.81 mm")),
])
sketch11.setExpression("Constraints[7]", "Params.sketch11_diameter")
pocket4 = body.newObject("PartDesign::Pocket", "Pocket003")
pocket4.Profile = sketch11
pocket4.setExpression("Length", "Params.pocket4_length")
pocket4.Reversed = True

doc.recompute()
